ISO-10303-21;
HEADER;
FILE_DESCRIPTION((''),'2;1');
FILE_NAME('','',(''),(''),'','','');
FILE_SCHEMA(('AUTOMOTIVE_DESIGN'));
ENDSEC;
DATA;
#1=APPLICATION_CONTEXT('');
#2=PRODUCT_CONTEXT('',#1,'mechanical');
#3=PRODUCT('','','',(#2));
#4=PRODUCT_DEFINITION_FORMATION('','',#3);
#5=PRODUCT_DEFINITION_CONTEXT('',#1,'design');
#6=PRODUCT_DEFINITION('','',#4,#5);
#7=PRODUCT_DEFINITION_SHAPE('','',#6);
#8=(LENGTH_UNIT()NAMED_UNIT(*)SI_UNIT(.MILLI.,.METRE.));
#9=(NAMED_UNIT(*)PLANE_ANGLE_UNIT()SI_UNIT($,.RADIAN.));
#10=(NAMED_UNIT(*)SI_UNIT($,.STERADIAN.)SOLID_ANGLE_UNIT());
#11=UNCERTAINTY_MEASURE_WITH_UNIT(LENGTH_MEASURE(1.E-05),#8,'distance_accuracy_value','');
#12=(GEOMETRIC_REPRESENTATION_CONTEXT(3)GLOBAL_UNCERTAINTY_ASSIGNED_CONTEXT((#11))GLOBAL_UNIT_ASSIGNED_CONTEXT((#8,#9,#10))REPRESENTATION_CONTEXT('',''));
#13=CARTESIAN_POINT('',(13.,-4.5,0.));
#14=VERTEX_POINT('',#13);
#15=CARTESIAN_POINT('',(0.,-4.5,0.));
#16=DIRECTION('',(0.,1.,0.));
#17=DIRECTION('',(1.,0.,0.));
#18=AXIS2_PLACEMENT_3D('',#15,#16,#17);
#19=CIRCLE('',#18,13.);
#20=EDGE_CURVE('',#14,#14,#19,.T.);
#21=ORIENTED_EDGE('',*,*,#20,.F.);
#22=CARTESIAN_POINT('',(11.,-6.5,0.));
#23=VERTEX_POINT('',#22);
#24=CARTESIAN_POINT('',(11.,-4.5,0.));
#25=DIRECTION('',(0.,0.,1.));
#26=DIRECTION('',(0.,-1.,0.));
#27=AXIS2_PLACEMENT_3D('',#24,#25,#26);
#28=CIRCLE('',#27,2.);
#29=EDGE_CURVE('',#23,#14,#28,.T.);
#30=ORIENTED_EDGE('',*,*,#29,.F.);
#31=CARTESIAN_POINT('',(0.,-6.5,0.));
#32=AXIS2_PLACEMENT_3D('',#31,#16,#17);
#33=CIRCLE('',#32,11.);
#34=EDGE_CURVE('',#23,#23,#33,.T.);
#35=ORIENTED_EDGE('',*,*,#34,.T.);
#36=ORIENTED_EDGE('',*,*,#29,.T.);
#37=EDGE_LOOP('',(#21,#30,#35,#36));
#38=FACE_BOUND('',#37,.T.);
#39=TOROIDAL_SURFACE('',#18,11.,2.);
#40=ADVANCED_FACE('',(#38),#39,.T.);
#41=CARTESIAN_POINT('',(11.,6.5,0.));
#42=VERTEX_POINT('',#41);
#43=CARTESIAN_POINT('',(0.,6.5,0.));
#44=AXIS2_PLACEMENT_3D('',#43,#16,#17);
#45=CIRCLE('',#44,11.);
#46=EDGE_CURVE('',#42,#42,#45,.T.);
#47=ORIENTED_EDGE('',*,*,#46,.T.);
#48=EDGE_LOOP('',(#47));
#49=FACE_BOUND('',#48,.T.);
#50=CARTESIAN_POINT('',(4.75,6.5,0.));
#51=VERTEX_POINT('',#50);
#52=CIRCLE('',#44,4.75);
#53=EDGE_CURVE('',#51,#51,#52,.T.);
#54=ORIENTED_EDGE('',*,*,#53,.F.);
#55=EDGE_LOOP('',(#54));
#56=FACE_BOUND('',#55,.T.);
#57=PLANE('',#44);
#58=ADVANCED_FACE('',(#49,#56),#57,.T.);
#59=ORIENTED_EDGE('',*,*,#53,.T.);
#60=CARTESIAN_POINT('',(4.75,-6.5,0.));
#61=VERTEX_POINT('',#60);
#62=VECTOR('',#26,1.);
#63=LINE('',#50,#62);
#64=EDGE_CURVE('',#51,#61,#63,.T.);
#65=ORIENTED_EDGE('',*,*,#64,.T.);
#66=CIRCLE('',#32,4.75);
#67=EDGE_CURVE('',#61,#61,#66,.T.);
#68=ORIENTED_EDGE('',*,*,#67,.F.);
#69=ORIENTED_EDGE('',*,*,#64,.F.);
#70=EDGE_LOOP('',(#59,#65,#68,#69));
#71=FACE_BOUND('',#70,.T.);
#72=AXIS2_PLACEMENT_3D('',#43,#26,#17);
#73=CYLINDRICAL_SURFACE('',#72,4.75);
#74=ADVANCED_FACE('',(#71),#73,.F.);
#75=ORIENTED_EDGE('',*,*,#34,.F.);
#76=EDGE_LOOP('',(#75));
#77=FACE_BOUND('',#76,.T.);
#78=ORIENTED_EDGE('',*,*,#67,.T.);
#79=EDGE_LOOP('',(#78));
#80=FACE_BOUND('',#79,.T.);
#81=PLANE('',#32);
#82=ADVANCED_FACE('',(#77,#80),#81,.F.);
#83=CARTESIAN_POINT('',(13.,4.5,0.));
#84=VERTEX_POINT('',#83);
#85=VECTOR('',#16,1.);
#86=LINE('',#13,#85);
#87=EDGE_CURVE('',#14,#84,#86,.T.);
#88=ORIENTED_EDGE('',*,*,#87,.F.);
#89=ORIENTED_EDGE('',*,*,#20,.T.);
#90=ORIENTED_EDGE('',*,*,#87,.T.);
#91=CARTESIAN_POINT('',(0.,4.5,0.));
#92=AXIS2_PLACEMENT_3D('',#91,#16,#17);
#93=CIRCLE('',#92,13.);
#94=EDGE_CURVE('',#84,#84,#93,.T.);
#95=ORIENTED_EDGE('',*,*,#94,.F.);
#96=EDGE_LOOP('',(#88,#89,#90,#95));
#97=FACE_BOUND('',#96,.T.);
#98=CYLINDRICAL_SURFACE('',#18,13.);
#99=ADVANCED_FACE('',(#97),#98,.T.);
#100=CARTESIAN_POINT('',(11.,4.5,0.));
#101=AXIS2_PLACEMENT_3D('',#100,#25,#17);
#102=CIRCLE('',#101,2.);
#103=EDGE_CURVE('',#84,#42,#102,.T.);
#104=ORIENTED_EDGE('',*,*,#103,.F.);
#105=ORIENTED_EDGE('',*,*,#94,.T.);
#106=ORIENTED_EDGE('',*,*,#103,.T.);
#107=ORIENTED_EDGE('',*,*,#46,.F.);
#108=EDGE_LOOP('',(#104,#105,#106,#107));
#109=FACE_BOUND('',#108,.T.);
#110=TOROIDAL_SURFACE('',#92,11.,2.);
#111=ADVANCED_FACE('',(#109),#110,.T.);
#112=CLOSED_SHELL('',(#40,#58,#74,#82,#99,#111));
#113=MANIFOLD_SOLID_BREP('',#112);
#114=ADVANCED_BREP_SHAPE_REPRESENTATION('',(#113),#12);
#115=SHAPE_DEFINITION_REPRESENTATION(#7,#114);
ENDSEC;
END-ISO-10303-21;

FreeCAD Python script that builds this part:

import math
import FreeCAD as App
import Part
import Sketcher
from FreeCAD import Vector
Q = App.Units.Quantity

doc = App.newDocument("Part")
body = doc.addObject("PartDesign::Body", "Body")

# Sketch on XY plane
sketch1 = body.newObject("Sketcher::SketchObject", "Sketch")
sketch1.AttachmentSupport = (doc.getObject("XY_Plane"), [""])
sketch1.MapMode = "FlatFace"
sketch1.addGeometry([
    Part.LineSegment(Vector(11, 6.5, 0), Vector(4.8, 6.5, 0)),  # 0
    Part.LineSegment(Vector(4.8, 6.5, 0), Vector(4.8, -6.5, 0)),  # 1
    Part.LineSegment(Vector(4.8, -6.5, 0), Vector(11, -6.5, 0)),  # 2
    Part.ArcOfCircle(Part.Circle(Vector(11, -4.5, 0), Vector(0, 0, 1), 2), math.radians(-90), math.radians(0)),  # 3
    Part.LineSegment(Vector(13, -4.5, 0), Vector(13, 4.5, 0)),  # 4
    Part.ArcOfCircle(Part.Circle(Vector(11, 4.5, 0), Vector(0, 0, 1), 2), math.radians(0), math.radians(90)),  # 5
], False)
sketch1.addConstraint([
    Sketcher.Constraint("Coincident", 0, 2, 1, 1),
    Sketcher.Constraint("Coincident", 1, 2, 2, 1),
    Sketcher.Constraint("Tangent", 2, 2, 3, 1),
    Sketcher.Constraint("Tangent", 3, 2, 4, 1),
    Sketcher.Constraint("Tangent", 4, 2, 5, 1),
    Sketcher.Constraint("Tangent", 5, 2, 0, 1),
    Sketcher.Constraint("Horizontal", 0),
    Sketcher.Constraint("Vertical", 1),
    Sketcher.Constraint("Horizontal", 2),
    Sketcher.Constraint("Vertical", 4),
    Sketcher.Constraint("Equal", 3, 5),
    Sketcher.Constraint("Radius", 3, Q("2 mm")),
    Sketcher.Constraint("DistanceY", 1, 2, 1, 1, Q("13 mm")),
    Sketcher.Constraint("DistanceX", -1, 1, 3, 2, Q("13 mm")),
    Sketcher.Constraint("DistanceX", 0, 2, 0, 1, Q("6.25 mm")),
    Sketcher.Constraint("DistanceY", 3, 3, -1, 1, Q("4.5 mm")),
])
revolution = body.newObject("PartDesign::Revolution", "Revolution")
revolution.Profile = sketch1
revolution.ReferenceAxis = (sketch1, ["V_Axis"])
revolution.Angle = 360

doc.recompute()
